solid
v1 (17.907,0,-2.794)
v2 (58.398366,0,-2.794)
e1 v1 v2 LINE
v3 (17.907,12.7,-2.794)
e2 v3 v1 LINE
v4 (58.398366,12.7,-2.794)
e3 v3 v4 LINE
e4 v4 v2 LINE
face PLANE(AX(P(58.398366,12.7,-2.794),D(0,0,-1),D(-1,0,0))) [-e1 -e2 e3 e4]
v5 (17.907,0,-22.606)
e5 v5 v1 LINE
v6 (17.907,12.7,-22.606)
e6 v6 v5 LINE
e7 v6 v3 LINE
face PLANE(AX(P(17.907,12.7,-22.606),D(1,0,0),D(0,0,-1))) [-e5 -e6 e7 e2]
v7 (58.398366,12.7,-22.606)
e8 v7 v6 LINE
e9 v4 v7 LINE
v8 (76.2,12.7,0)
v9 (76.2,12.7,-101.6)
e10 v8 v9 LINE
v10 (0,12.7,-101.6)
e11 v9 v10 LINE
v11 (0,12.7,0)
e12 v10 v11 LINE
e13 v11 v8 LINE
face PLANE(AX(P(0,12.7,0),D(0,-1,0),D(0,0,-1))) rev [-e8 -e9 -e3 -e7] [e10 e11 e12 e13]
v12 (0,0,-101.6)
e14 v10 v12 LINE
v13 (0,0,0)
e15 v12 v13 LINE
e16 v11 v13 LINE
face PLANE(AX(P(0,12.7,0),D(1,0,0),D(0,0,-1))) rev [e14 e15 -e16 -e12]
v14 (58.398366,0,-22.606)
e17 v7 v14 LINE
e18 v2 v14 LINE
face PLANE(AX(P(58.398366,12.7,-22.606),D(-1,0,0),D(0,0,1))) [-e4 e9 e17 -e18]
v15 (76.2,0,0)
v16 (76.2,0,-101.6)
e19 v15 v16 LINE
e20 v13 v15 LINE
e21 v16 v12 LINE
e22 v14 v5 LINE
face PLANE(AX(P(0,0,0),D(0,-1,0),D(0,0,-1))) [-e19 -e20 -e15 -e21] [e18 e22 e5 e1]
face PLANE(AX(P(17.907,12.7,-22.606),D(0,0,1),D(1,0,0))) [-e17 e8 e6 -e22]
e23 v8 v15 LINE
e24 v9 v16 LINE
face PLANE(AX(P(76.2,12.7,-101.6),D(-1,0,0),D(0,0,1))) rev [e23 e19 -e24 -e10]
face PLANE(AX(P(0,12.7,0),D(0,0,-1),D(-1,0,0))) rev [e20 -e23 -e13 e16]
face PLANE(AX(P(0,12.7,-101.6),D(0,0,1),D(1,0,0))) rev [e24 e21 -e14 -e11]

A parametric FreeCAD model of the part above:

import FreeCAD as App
import Part
import Sketcher
Q = App.Units.Quantity

doc = App.newDocument("Part")
body = doc.addObject("PartDesign::Body", "Body")

sketch1 = body.newObject("Sketcher::SketchObject", "Sketch")
sketch1.AttachmentSupport = (doc.getObject("XZ_Plane"), [""])
sketch1.MapMode = "FlatFace"
sketch1.addGeometry(Part.LineSegment(App.Vector(0, -102, 0), App.Vector(0, 0, 0)), False)
sketch1.addGeometry(Part.LineSegment(App.Vector(0, 0, 0), App.Vector(76, 0, 0)), False)
sketch1.addGeometry(Part.LineSegment(App.Vector(76, 0, 0), App.Vector(76, -102, 0)), False)
sketch1.addGeometry(Part.LineSegment(App.Vector(76, -102, 0), App.Vector(0, -102, 0)), False)
sketch1.addGeometry(Part.LineSegment(App.Vector(58, -3, 0), App.Vector(18, -3, 0)), False)
sketch1.addGeometry(Part.LineSegment(App.Vector(18, -3, 0), App.Vector(18, -23, 0)), False)
sketch1.addGeometry(Part.LineSegment(App.Vector(18, -23, 0), App.Vector(58, -23, 0)), False)
sketch1.addGeometry(Part.LineSegment(App.Vector(58, -23, 0), App.Vector(58, -3, 0)), False)
sketch1.addConstraint(Sketcher.Constraint("Coincident", 0, 2, 1, 1))
sketch1.addConstraint(Sketcher.Constraint("Coincident", 1, 2, 2, 1))
sketch1.addConstraint(Sketcher.Constraint("Coincident", 2, 2, 3, 1))
sketch1.addConstraint(Sketcher.Constraint("Coincident", 3, 2, 0, 1))
sketch1.addConstraint(Sketcher.Constraint("Coincident", 4, 2, 5, 1))
sketch1.addConstraint(Sketcher.Constraint("Coincident", 5, 2, 6, 1))
sketch1.addConstraint(Sketcher.Constraint("Coincident", 6, 2, 7, 1))
sketch1.addConstraint(Sketcher.Constraint("Coincident", 7, 2, 4, 1))
sketch1.addConstraint(Sketcher.Constraint("Vertical", 0))
sketch1.addConstraint(Sketcher.Constraint("Horizontal", 1))
sketch1.addConstraint(Sketcher.Constraint("Vertical", 2))
sketch1.addConstraint(Sketcher.Constraint("Horizontal", 3))
sketch1.addConstraint(Sketcher.Constraint("Horizontal", 4))
sketch1.addConstraint(Sketcher.Constraint("Vertical", 5))
sketch1.addConstraint(Sketcher.Constraint("Horizontal", 6))
sketch1.addConstraint(Sketcher.Constraint("Vertical", 7))
sketch1.addConstraint(Sketcher.Constraint("Coincident", 0, 2, -1, 1))
sketch1.addConstraint(Sketcher.Constraint("DistanceX", 1, 1, 1, 2, Q("3 in")))
sketch1.addConstraint(Sketcher.Constraint("DistanceY", 0, 1, 0, 2, Q("4 in")))
sketch1.addConstraint(Sketcher.Constraint("DistanceY", 5, 2, 5, 1, Q("0.78 in")))
sketch1.addConstraint(Sketcher.Constraint("DistanceY", 4, 2, -1, 1, Q("0.11 in")))
sketch1.addConstraint(Sketcher.Constraint("DistanceX", -1, 1, 4, 2, Q("0.705 in")))
sketch1.addConstraint(Sketcher.Constraint("DistanceX", 4, 2, 4, 1, Q("40.491366 mm")))
pad1 = body.newObject("PartDesign::Pad", "Pad")
pad1.Profile = sketch1
pad1.Length = Q("0.5 in")
pad1.Reversed = True

doc.recompute()
